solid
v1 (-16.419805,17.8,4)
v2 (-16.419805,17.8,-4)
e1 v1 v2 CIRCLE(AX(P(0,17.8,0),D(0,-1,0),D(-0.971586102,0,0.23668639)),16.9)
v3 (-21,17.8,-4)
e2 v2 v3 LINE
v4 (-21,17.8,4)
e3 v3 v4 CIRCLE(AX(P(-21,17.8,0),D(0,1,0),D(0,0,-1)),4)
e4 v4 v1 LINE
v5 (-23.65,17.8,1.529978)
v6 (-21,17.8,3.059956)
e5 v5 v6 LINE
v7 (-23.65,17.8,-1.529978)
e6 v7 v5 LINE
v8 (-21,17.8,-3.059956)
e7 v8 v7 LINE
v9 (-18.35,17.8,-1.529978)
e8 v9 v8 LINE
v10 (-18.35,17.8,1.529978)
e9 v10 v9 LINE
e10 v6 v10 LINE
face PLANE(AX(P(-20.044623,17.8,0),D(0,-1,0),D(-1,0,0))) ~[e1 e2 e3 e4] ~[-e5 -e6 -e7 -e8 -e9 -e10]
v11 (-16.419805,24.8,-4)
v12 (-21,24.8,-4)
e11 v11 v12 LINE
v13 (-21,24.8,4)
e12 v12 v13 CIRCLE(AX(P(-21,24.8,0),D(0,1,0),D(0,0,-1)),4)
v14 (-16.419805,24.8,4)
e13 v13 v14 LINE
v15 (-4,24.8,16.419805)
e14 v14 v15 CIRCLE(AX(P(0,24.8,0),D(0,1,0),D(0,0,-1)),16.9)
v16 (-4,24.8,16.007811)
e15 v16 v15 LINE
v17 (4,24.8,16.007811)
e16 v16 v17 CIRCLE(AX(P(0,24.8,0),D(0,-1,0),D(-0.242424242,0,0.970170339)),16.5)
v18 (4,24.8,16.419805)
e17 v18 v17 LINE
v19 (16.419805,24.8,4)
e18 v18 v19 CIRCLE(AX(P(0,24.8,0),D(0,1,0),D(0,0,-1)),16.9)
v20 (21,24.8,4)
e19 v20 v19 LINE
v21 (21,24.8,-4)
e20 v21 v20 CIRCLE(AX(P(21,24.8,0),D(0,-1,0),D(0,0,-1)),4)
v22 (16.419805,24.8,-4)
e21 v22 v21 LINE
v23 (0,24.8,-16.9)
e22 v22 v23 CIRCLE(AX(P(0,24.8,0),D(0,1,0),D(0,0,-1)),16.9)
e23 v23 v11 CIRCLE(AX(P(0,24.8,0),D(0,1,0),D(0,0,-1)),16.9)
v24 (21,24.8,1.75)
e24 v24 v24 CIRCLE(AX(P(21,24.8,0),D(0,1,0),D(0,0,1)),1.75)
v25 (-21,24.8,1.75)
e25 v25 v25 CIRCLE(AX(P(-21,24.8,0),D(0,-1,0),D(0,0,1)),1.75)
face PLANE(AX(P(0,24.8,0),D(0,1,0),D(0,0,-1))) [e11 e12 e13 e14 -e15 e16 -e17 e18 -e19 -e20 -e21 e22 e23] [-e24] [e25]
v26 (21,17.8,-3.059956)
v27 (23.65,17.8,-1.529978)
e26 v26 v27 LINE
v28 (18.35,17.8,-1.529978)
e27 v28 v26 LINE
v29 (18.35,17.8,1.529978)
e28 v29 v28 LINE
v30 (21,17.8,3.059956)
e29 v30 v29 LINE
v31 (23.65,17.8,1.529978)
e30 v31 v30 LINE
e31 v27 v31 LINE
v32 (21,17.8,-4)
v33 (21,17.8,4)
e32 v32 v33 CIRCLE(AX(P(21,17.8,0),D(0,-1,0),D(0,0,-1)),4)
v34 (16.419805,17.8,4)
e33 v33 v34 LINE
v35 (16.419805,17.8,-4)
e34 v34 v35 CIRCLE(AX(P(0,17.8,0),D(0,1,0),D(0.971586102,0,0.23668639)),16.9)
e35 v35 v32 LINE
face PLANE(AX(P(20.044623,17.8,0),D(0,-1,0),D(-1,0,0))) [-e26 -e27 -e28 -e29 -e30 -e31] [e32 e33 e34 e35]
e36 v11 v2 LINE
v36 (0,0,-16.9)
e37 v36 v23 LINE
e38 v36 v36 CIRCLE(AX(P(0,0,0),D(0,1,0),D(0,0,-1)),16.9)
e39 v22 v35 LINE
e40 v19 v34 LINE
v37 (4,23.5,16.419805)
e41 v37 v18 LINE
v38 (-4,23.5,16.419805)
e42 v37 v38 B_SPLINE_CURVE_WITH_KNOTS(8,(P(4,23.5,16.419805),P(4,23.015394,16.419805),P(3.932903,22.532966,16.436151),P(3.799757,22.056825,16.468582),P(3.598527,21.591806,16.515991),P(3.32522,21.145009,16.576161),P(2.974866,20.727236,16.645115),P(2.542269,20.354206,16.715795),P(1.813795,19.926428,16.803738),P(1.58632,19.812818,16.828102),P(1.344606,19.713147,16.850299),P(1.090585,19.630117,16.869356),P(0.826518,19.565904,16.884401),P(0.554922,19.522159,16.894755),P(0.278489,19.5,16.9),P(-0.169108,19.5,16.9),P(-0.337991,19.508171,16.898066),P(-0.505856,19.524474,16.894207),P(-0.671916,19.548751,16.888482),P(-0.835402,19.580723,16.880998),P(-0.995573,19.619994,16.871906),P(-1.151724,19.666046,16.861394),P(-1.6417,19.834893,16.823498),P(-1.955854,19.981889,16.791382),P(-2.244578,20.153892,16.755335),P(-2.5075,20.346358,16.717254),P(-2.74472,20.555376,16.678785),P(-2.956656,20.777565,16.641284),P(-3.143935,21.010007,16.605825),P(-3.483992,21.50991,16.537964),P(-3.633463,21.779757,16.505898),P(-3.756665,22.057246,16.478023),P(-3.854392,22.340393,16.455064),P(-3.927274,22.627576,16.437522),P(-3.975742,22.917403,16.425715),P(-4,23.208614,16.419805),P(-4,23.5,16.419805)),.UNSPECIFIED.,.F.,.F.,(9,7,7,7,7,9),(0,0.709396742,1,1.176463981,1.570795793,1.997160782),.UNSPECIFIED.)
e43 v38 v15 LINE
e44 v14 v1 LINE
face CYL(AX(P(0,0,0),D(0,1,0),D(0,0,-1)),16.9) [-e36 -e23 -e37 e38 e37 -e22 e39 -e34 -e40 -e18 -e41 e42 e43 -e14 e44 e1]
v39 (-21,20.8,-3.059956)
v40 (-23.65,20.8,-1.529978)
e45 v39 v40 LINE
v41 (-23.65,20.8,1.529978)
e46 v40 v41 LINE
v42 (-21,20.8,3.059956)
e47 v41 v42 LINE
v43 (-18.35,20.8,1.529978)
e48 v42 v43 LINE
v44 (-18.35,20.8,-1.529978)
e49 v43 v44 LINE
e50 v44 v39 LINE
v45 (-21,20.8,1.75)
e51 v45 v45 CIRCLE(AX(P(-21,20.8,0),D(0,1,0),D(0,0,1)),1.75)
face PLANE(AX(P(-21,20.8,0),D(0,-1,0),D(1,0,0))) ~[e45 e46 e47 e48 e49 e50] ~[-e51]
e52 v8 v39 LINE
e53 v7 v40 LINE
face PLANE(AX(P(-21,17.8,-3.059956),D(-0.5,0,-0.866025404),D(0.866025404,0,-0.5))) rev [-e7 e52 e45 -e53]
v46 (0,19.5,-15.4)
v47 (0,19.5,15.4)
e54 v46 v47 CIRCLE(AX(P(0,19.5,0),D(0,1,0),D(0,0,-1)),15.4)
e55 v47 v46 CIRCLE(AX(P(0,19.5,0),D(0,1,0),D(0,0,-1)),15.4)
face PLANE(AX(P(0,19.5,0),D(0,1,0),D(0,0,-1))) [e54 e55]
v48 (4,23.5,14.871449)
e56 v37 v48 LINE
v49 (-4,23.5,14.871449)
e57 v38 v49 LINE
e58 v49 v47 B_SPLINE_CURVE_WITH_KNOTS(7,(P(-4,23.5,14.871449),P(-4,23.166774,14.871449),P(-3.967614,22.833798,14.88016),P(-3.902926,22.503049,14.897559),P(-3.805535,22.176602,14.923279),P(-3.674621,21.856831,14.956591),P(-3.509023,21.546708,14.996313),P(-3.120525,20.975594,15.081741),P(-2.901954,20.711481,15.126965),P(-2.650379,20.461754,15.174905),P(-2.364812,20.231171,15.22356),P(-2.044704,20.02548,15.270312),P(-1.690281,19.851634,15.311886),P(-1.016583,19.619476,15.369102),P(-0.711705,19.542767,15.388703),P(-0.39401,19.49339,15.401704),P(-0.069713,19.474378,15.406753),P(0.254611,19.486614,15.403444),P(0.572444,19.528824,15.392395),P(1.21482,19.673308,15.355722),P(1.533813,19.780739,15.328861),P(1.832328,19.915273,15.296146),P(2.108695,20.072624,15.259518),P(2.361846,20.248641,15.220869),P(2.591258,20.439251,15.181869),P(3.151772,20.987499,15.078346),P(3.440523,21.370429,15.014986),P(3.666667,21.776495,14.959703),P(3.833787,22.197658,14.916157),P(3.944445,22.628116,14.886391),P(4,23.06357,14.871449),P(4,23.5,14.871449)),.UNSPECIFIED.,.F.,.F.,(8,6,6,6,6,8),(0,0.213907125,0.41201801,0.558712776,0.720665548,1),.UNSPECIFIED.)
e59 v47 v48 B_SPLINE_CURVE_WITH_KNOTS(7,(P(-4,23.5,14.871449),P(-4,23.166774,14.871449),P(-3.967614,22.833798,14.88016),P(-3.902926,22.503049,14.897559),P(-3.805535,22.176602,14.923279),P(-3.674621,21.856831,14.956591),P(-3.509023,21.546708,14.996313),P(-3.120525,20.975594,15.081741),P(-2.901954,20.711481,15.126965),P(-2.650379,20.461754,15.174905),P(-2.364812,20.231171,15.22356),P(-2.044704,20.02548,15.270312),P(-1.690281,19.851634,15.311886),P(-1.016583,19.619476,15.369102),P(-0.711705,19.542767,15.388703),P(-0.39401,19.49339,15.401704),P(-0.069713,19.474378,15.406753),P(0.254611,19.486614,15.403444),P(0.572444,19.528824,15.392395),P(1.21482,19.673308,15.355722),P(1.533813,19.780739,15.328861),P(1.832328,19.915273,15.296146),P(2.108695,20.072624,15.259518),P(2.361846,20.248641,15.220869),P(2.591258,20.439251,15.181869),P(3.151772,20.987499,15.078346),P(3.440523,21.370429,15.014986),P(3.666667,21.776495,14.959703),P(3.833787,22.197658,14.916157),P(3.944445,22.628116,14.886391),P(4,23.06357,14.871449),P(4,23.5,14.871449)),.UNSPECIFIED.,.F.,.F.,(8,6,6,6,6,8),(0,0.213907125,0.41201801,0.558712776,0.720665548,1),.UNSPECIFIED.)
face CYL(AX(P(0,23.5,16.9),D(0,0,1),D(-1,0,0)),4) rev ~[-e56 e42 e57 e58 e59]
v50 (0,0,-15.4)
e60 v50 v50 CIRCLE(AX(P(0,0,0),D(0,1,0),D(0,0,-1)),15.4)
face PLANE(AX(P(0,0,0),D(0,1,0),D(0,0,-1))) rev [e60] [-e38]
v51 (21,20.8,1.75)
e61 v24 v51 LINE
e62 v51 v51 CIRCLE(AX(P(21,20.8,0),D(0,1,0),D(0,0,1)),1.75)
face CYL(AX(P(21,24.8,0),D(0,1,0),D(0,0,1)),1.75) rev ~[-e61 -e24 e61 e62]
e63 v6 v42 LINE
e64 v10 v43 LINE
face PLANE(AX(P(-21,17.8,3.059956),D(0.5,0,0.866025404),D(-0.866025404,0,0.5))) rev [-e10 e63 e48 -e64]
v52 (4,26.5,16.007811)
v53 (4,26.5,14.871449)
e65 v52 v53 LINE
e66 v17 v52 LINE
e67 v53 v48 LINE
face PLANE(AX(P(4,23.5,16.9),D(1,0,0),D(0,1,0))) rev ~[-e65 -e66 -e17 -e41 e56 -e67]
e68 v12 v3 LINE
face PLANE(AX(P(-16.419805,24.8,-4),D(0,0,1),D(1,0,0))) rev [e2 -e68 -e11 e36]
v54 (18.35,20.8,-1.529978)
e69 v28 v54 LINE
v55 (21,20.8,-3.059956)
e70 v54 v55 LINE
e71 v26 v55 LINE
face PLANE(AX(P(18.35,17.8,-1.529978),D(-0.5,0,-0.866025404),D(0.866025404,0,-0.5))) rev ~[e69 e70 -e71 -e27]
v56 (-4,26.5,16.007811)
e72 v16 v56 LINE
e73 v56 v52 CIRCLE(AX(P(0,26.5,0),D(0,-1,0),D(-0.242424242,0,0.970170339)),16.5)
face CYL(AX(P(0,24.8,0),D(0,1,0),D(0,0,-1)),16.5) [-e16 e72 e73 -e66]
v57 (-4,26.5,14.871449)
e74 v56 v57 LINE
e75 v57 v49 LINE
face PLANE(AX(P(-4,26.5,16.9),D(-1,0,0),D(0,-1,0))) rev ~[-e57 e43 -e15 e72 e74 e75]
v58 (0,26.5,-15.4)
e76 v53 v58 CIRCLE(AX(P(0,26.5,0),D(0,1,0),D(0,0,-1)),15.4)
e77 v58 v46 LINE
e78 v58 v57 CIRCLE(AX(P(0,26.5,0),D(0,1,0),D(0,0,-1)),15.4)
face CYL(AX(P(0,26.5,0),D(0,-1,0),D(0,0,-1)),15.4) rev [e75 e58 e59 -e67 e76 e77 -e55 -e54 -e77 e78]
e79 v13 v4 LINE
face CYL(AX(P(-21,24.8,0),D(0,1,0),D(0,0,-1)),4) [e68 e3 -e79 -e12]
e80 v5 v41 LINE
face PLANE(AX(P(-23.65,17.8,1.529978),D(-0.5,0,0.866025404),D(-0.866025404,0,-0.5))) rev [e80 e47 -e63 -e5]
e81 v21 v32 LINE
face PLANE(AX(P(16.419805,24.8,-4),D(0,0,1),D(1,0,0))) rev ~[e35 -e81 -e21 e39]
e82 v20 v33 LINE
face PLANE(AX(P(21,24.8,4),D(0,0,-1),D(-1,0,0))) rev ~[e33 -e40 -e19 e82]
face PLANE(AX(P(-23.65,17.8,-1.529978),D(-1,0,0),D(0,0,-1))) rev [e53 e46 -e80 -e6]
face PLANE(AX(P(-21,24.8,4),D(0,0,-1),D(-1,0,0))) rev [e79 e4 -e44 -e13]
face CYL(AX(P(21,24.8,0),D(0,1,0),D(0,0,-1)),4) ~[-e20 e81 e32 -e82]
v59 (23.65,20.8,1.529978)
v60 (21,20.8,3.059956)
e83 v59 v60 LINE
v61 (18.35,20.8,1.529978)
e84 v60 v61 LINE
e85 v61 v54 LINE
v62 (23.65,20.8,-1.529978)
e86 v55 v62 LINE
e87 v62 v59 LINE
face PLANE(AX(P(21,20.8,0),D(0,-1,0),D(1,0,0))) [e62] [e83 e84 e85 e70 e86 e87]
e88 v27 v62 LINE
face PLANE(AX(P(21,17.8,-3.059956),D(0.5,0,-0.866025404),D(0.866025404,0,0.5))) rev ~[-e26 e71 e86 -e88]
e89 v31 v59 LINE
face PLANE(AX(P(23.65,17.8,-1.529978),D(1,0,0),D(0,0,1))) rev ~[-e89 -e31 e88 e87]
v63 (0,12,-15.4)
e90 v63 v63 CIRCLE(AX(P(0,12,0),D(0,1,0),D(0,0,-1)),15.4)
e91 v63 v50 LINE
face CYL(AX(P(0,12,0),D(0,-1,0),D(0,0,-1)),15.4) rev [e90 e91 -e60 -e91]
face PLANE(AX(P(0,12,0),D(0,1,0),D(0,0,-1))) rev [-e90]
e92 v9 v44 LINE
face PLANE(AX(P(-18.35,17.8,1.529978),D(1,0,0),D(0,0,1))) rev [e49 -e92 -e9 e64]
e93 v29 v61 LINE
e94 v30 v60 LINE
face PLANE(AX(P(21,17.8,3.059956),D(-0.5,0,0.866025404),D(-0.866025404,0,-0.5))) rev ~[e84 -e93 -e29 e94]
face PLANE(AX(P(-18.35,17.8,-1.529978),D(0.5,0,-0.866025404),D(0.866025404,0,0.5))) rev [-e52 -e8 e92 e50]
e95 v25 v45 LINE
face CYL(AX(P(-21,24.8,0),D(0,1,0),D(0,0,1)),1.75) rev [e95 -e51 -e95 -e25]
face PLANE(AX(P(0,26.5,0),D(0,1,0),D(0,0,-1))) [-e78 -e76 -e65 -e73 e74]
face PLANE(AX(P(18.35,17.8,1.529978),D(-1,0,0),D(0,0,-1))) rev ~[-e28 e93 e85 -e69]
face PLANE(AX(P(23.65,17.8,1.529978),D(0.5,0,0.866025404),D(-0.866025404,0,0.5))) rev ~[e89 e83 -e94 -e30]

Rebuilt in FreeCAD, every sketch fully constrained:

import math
import FreeCAD as App
import Part
import Sketcher

V = App.Vector
Q = App.Units.Quantity

doc = App.newDocument("Part")
body = doc.addObject("PartDesign::Body", "Body")

# Sketch on XY plane
sketch1 = body.newObject("Sketcher::SketchObject", "Sketch")
sketch1.AttachmentSupport = (doc.getObject("XY_Plane"), [""])
sketch1.MapMode = "FlatFace"
sketch1.addGeometry(Part.LineSegment(V(0, 12, 0), V(15.4, 12, 0)), False)
sketch1.addGeometry(Part.LineSegment(V(15.4, 12, 0), V(15.4, 0, 0)), False)
sketch1.addGeometry(Part.LineSegment(V(15.4, 0, 0), V(16.9, 0, 0)), False)
sketch1.addGeometry(Part.LineSegment(V(16.9, 0, 0), V(16.9, 24.8, 0)), False)
sketch1.addGeometry(Part.LineSegment(V(16.9, 24.8, 0), V(16.5, 24.8, 0)), False)
sketch1.addGeometry(Part.LineSegment(V(16.5, 24.8, 0), V(16.5, 26.5, 0)), False)
sketch1.addGeometry(Part.LineSegment(V(16.5, 26.5, 0), V(15.4, 26.5, 0)), False)
sketch1.addGeometry(Part.LineSegment(V(15.4, 26.5, 0), V(15.4, 19.5, 0)), False)
sketch1.addGeometry(Part.LineSegment(V(15.4, 19.5, 0), V(0, 19.5, 0)), False)
sketch1.addGeometry(Part.LineSegment(V(0, 19.5, 0), V(0, 12, 0)), False)
sketch1.addConstraint(Sketcher.Constraint("Coincident", 0, 2, 1, 1))
sketch1.addConstraint(Sketcher.Constraint("Coincident", 1, 2, 2, 1))
sketch1.addConstraint(Sketcher.Constraint("Coincident", 2, 2, 3, 1))
sketch1.addConstraint(Sketcher.Constraint("Coincident", 3, 2, 4, 1))
sketch1.addConstraint(Sketcher.Constraint("Coincident", 4, 2, 5, 1))
sketch1.addConstraint(Sketcher.Constraint("Coincident", 5, 2, 6, 1))
sketch1.addConstraint(Sketcher.Constraint("Coincident", 6, 2, 7, 1))
sketch1.addConstraint(Sketcher.Constraint("Coincident", 7, 2, 8, 1))
sketch1.addConstraint(Sketcher.Constraint("Coincident", 8, 2, 9, 1))
sketch1.addConstraint(Sketcher.Constraint("Coincident", 9, 2, 0, 1))
sketch1.addConstraint(Sketcher.Constraint("Horizontal", 0))
sketch1.addConstraint(Sketcher.Constraint("Vertical", 1))
sketch1.addConstraint(Sketcher.Constraint("Horizontal", 2))
sketch1.addConstraint(Sketcher.Constraint("Vertical", 3))
sketch1.addConstraint(Sketcher.Constraint("Horizontal", 4))
sketch1.addConstraint(Sketcher.Constraint("Vertical", 5))
sketch1.addConstraint(Sketcher.Constraint("Horizontal", 6))
sketch1.addConstraint(Sketcher.Constraint("Vertical", 7))
sketch1.addConstraint(Sketcher.Constraint("Horizontal", 8))
sketch1.addConstraint(Sketcher.Constraint("Vertical", 9))
sketch1.addConstraint(Sketcher.Constraint("PointOnObject", 1, 2, -1))
sketch1.addConstraint(Sketcher.Constraint("PointOnObject", 8, 2, -2))
sketch1.addConstraint(Sketcher.Constraint("Vertical", 1, 2, 6, 2))
sketch1.addConstraint(Sketcher.Constraint("DistanceY", 1, 2, 1, 1, Q("12 mm")))
sketch1.addConstraint(Sketcher.Constraint("DistanceY", 7, 2, 7, 1, Q("7 mm")))
sketch1.addConstraint(Sketcher.Constraint("DistanceX", 0, 1, 0, 2, Q("15.4 mm")))
sketch1.addConstraint(Sketcher.Constraint("DistanceX", 2, 1, 2, 2, Q("1.5 mm")))
sketch1.addConstraint(Sketcher.Constraint("DistanceX", 4, 2, 4, 1, Q("0.4 mm")))
sketch1.addConstraint(Sketcher.Constraint("DistanceY", 3, 1, 3, 2, Q("24.8 mm")))
sketch1.addConstraint(Sketcher.Constraint("DistanceY", 5, 1, 5, 2, Q("1.7 mm")))
revolution = body.newObject("PartDesign::Revolution", "Revolution")
revolution.Profile = sketch1
revolution.ReferenceAxis = (sketch1, ["V_Axis"])
revolution.Angle = 360

# Sketch on XY plane
sketch2 = body.newObject("Sketcher::SketchObject", "Sketch001")
sketch2.AttachmentSupport = (doc.getObject("XY_Plane"), [""])
sketch2.MapMode = "FlatFace"
sketch2.AttachmentOffset = App.Placement(V(0, 0, 16.9), App.Rotation())
sketch2.addGeometry(Part.LineSegment(V(-4, 26.5, 0), V(-4, 23.5, 0)), False)
sketch2.addGeometry(Part.ArcOfCircle(Part.Circle(V(0, 23.5, 0), V(0, 0, 1), 4), math.radians(180), math.radians(360)), False)
sketch2.addGeometry(Part.LineSegment(V(4, 23.5, 0), V(4, 26.5, 0)), False)
sketch2.addGeometry(Part.LineSegment(V(4, 26.5, 0), V(-4, 26.5, 0)), False)
sketch2.addConstraint(Sketcher.Constraint("Tangent", 0, 2, 1, 1))
sketch2.addConstraint(Sketcher.Constraint("Tangent", 1, 2, 2, 1))
sketch2.addConstraint(Sketcher.Constraint("Coincident", 2, 2, 3, 1))
sketch2.addConstraint(Sketcher.Constraint("Coincident", 3, 2, 0, 1))
sketch2.addConstraint(Sketcher.Constraint("Vertical", 0))
sketch2.addConstraint(Sketcher.Constraint("Vertical", 2))
sketch2.addConstraint(Sketcher.Constraint("Horizontal", 3))
sketch2.addConstraint(Sketcher.Constraint("PointOnObject", 1, 3, -2))
sketch2.addConstraint(Sketcher.Constraint("Radius", 1, Q("4 mm")))
sketch2.addConstraint(Sketcher.Constraint("DistanceY", 0, 2, 0, 1, Q("3 mm")))
sketch2.addConstraint(Sketcher.Constraint("DistanceY", -1, 1, 1, 3, Q("23.5 mm")))
pocket1 = body.newObject("PartDesign::Pocket", "Pocket")
pocket1.Profile = sketch2
pocket1.Length = 10

# Sketch on XZ plane
sketch3 = body.newObject("Sketcher::SketchObject", "Sketch002")
sketch3.AttachmentSupport = (doc.getObject("XZ_Plane"), [""])
sketch3.MapMode = "FlatFace"
sketch3.AttachmentOffset = App.Placement(V(0, 0, -24.8), App.Rotation())
sketch3.addGeometry(Part.LineSegment(V(16.4, 4, 0), V(21, 4, 0)), False)
sketch3.addGeometry(Part.ArcOfCircle(Part.Circle(V(21, 0, 0), V(0, 0, 1), 4), math.radians(-90), math.radians(90)), False)
sketch3.addGeometry(Part.LineSegment(V(21, -4, 0), V(16.4, -4, 0)), False)
sketch3.addGeometry(Part.ArcOfCircle(Part.Circle(V(0, 0, 0), V(0, 0, 1), 16.9), math.radians(-14), math.radians(14)), False)
sketch3.addGeometry(Part.Circle(V(21, 0, 0), V(0, 0, 1), 1.8), False)
sketch3.addConstraint(Sketcher.Constraint("Tangent", 0, 2, 1, 2))
sketch3.addConstraint(Sketcher.Constraint("Tangent", 1, 1, 2, 1))
sketch3.addConstraint(Sketcher.Constraint("Coincident", 2, 2, 3, 1))
sketch3.addConstraint(Sketcher.Constraint("Coincident", 3, 2, 0, 1))
sketch3.addConstraint(Sketcher.Constraint("Horizontal", 0))
sketch3.addConstraint(Sketcher.Constraint("Horizontal", 2))
sketch3.addConstraint(Sketcher.Constraint("Coincident", 3, 3, -1, 1))
sketch3.addConstraint(Sketcher.Constraint("Coincident", 4, 3, 1, 3))
sketch3.addConstraint(Sketcher.Constraint("PointOnObject", 1, 3, -1))
sketch3.addConstraint(Sketcher.Constraint("Radius", 1, Q("4 mm")))
sketch3.addConstraint(Sketcher.Constraint("Diameter", 4, Q("3.5 mm")))
sketch3.addConstraint(Sketcher.Constraint("Radius", 3, Q("16.9 mm")))
sketch3.addConstraint(Sketcher.Constraint("DistanceX", -1, 1, 1, 3, Q("21 mm")))
pad1 = body.newObject("PartDesign::Pad", "Pad")
pad1.Profile = sketch3
pad1.Length = 7

# Sketch on XZ plane
sketch4 = body.newObject("Sketcher::SketchObject", "Sketch003")
sketch4.AttachmentSupport = (doc.getObject("XZ_Plane"), [""])
sketch4.MapMode = "FlatFace"
sketch4.AttachmentOffset = App.Placement(V(0, 0, -17.8), App.Rotation())
sketch4.addGeometry(Part.LineSegment(V(18.4, -1.5, 0), V(21, -3.1, 0)), False)
sketch4.addGeometry(Part.LineSegment(V(21, -3.1, 0), V(23.6, -1.5, 0)), False)
sketch4.addGeometry(Part.LineSegment(V(23.6, -1.5, 0), V(23.6, 1.5, 0)), False)
sketch4.addGeometry(Part.LineSegment(V(23.6, 1.5, 0), V(21, 3.1, 0)), False)
sketch4.addGeometry(Part.LineSegment(V(21, 3.1, 0), V(18.4, 1.5, 0)), False)
sketch4.addGeometry(Part.LineSegment(V(18.4, 1.5, 0), V(18.4, -1.5, 0)), False)
sketch4.addConstraint(Sketcher.Constraint("Coincident", 0, 2, 1, 1))
sketch4.addConstraint(Sketcher.Constraint("Coincident", 1, 2, 2, 1))
sketch4.addConstraint(Sketcher.Constraint("Coincident", 2, 2, 3, 1))
sketch4.addConstraint(Sketcher.Constraint("Coincident", 3, 2, 4, 1))
sketch4.addConstraint(Sketcher.Constraint("Coincident", 4, 2, 5, 1))
sketch4.addConstraint(Sketcher.Constraint("Coincident", 5, 2, 0, 1))
sketch4.addConstraint(Sketcher.Constraint("Vertical", 2))
sketch4.addConstraint(Sketcher.Constraint("Vertical", 5))
sketch4.addConstraint(Sketcher.Constraint("Symmetric", 0, 2, 3, 2, -1))
sketch4.addConstraint(Sketcher.Constraint("Parallel", 0, 3))
sketch4.addConstraint(Sketcher.Constraint("Parallel", 1, 4))
sketch4.addConstraint(Sketcher.Constraint("Horizontal", 2, 2, 4, 2))
sketch4.addConstraint(Sketcher.Constraint("Horizontal", 1, 2, 5, 2))
sketch4.addConstraint(Sketcher.Constraint("Angle", 0, Q("-30 deg")))
sketch4.addConstraint(Sketcher.Constraint("DistanceX", -1, 1, 0, 2, Q("21 mm")))
sketch4.addConstraint(Sketcher.Constraint("DistanceX", 4, 2, 2, 2, Q("5.3 mm")))
sketch4.addConstraint(Sketcher.Constraint("DistanceY", 2, 1, 2, 2, Q("3.059956 mm")))
pocket2 = body.newObject("PartDesign::Pocket", "Pocket001")
pocket2.Profile = sketch4
pocket2.Length = 3
doc.recompute()

mirrored = body.newObject("PartDesign::Mirrored", "Mirrored")
mirrored.Originals = [pad1, pocket2]
mirrored.MirrorPlane = (doc.getObject("YZ_Plane"), [""])
body.Tip = mirrored

doc.recompute()
